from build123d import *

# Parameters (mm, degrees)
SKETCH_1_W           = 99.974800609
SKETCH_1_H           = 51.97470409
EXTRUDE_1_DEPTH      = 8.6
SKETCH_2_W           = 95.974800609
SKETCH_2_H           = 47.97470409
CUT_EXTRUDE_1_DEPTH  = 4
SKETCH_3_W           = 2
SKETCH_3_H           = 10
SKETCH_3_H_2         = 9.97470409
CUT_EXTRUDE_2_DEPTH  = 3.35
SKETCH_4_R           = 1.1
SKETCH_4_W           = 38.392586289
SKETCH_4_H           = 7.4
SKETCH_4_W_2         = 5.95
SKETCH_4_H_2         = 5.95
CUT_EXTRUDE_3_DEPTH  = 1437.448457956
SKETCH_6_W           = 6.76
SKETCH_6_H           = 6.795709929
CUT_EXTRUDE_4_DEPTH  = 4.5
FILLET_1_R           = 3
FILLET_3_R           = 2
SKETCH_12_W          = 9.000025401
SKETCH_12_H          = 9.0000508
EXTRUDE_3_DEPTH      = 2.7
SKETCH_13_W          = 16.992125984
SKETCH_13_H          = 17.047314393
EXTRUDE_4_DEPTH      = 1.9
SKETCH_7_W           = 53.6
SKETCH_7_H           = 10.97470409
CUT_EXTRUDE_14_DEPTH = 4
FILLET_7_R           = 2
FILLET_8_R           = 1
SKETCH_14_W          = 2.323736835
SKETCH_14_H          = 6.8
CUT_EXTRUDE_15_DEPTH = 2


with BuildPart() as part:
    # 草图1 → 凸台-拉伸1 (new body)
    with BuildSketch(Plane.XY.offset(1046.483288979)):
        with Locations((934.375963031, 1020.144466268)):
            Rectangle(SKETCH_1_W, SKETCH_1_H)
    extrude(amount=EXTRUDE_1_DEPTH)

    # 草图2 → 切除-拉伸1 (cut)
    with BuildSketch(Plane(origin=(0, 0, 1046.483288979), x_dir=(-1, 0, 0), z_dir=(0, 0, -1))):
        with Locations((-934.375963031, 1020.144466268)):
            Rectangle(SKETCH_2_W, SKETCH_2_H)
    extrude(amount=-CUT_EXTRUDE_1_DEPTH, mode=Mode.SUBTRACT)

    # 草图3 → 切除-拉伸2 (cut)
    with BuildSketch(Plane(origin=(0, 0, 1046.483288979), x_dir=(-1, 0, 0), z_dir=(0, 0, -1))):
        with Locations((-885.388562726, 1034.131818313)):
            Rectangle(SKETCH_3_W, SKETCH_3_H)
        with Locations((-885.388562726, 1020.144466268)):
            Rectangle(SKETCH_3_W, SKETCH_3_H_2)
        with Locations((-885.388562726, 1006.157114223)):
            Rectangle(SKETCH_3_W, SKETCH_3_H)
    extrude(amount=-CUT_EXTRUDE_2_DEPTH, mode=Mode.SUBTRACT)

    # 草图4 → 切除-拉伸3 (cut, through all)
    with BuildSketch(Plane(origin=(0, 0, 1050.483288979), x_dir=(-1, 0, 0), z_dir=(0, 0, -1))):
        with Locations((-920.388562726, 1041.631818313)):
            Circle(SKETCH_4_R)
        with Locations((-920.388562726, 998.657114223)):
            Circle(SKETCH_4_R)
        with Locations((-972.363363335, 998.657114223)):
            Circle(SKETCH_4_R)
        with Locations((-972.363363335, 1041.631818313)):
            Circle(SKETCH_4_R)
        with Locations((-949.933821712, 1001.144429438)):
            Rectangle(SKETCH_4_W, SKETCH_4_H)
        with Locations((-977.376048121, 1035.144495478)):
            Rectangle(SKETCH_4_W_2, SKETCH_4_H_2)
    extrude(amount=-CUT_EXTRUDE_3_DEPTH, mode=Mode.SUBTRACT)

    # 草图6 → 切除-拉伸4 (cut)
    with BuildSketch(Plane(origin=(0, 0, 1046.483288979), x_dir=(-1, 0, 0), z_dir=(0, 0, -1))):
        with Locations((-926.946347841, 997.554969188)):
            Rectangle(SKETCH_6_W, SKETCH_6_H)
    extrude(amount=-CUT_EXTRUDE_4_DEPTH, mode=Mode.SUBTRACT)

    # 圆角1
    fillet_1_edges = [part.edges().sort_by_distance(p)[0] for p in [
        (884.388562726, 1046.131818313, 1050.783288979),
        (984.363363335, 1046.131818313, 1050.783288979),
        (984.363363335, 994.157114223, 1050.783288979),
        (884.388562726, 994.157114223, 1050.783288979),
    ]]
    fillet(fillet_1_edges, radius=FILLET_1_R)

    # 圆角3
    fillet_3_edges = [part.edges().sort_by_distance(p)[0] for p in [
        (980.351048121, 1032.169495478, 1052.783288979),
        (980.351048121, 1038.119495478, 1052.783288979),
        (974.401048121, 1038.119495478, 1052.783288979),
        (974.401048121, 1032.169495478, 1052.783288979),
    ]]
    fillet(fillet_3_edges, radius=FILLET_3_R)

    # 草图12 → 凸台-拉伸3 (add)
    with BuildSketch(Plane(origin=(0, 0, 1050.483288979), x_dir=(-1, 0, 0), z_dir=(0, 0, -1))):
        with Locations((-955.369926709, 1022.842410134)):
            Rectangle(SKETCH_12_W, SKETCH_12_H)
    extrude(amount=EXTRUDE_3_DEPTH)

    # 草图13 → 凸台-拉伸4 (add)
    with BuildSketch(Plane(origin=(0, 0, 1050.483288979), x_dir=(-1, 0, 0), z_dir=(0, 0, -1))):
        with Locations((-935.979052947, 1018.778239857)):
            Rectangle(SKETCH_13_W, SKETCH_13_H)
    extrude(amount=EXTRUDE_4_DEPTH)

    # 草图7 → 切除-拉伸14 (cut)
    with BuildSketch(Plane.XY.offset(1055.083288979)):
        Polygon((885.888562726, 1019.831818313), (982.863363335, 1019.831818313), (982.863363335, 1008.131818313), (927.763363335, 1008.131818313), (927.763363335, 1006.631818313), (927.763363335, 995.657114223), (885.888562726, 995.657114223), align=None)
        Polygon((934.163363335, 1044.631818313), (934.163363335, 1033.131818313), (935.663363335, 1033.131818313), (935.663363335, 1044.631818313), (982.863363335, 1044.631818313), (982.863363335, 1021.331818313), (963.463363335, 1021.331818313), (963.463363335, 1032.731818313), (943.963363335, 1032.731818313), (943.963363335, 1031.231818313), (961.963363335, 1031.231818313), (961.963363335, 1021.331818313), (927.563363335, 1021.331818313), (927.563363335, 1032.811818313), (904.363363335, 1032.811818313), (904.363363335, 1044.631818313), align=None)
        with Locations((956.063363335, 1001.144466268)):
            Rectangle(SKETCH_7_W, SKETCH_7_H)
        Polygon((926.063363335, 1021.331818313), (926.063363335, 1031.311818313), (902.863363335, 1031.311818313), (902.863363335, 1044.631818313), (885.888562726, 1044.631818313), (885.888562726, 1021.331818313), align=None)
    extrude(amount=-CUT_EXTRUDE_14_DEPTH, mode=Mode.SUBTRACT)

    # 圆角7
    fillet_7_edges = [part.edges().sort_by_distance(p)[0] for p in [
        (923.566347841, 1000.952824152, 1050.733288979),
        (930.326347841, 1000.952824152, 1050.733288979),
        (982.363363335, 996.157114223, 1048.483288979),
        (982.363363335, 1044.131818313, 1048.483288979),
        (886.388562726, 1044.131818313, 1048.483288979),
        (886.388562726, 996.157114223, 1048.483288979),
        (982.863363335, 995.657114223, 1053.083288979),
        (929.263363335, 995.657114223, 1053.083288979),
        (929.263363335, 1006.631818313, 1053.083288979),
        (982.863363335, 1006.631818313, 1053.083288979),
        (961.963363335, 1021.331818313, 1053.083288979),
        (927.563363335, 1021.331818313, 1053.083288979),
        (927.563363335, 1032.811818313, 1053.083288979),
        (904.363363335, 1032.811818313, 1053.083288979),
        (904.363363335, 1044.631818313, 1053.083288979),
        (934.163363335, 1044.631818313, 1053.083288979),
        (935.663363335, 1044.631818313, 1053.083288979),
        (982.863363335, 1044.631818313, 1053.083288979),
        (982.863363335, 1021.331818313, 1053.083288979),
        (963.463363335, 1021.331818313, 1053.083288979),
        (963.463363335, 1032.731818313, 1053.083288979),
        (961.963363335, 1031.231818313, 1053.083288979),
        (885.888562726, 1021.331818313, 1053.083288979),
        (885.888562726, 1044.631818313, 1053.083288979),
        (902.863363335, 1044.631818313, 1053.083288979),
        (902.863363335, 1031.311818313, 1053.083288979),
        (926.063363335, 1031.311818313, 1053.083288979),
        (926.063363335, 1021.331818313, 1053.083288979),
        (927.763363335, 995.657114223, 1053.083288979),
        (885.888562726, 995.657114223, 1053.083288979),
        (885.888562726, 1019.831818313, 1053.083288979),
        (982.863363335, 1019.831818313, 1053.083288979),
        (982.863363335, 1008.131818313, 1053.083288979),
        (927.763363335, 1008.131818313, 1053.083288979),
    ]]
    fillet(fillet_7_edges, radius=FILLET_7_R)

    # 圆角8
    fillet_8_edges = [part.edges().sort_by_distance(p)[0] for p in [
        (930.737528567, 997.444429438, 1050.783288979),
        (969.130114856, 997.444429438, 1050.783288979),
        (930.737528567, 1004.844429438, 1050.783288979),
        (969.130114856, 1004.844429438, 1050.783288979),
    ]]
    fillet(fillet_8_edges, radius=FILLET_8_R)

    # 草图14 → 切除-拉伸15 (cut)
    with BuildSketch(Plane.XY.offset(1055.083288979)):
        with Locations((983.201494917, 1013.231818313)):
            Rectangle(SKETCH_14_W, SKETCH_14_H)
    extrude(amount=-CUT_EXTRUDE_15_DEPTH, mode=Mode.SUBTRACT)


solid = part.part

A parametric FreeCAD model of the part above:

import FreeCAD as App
import Part
import Sketcher

V = App.Vector


def edges_at(feature, points):
    """Names of the edges that pass closest to the given points."""
    edges = feature.Shape.Edges
    near = lambda p: min(range(len(edges)), key=lambda i: edges[i].distToShape(Part.Vertex(*p))[0])
    return sorted({f"Edge{near(p) + 1}" for p in points})

doc = App.newDocument("Part")
body = doc.addObject("PartDesign::Body", "Body")

sketch1 = body.newObject("Sketcher::SketchObject", "Sketch")
sketch1.AttachmentSupport = (doc.getObject("XY_Plane"), [""])
sketch1.MapMode = "FlatFace"
sketch1.AttachmentOffset = App.Placement(V(0, 0, 1046.483289), App.Rotation())
sketch1.addGeometry(Part.LineSegment(V(884, 1046, 0), V(884, 994, 0)), False)
sketch1.addGeometry(Part.LineSegment(V(884, 994, 0), V(984, 994, 0)), False)
sketch1.addGeometry(Part.LineSegment(V(984, 994, 0), V(984, 1046, 0)), False)
sketch1.addGeometry(Part.LineSegment(V(984, 1046, 0), V(884, 1046, 0)), False)
sketch1.addConstraint(Sketcher.Constraint("Coincident", 0, 2, 1, 1))
sketch1.addConstraint(Sketcher.Constraint("Coincident", 1, 2, 2, 1))
sketch1.addConstraint(Sketcher.Constraint("Coincident", 2, 2, 3, 1))
sketch1.addConstraint(Sketcher.Constraint("Coincident", 3, 2, 0, 1))
sketch1.addConstraint(Sketcher.Constraint("Vertical", 0))
sketch1.addConstraint(Sketcher.Constraint("Horizontal", 1))
sketch1.addConstraint(Sketcher.Constraint("Vertical", 2))
sketch1.addConstraint(Sketcher.Constraint("Horizontal", 3))
sketch1.addConstraint(Sketcher.Constraint("DistanceX", 1, 1, 1, 2, 99.974801))
sketch1.addConstraint(Sketcher.Constraint("DistanceY", 0, 2, 0, 1, 51.974704))
sketch1.addConstraint(Sketcher.Constraint("DistanceY", -1, 1, 2, 2, 1046.131818))
sketch1.addConstraint(Sketcher.Constraint("DistanceX", -1, 1, 0, 2, 884.388563))
pad1 = body.newObject("PartDesign::Pad", "Pad")
pad1.Profile = sketch1
pad1.Length = 8.6

sketch2 = body.newObject("Sketcher::SketchObject", "Sketch001")
sketch2.AttachmentSupport = (doc.getObject("XY_Plane"), [""])
sketch2.MapMode = "FlatFace"
sketch2.AttachmentOffset = App.Placement(V(0, 0, 1046.483289), App.Rotation())
sketch2.addGeometry(Part.LineSegment(V(982, 1044, 0), V(982, 996, 0)), False)
sketch2.addGeometry(Part.LineSegment(V(982, 996, 0), V(886, 996, 0)), False)
sketch2.addGeometry(Part.LineSegment(V(886, 996, 0), V(886, 1044, 0)), False)
sketch2.addGeometry(Part.LineSegment(V(886, 1044, 0), V(982, 1044, 0)), False)
sketch2.addConstraint(Sketcher.Constraint("Coincident", 0, 2, 1, 1))
sketch2.addConstraint(Sketcher.Constraint("Coincident", 1, 2, 2, 1))
sketch2.addConstraint(Sketcher.Constraint("Coincident", 2, 2, 3, 1))
sketch2.addConstraint(Sketcher.Constraint("Coincident", 3, 2, 0, 1))
sketch2.addConstraint(Sketcher.Constraint("Vertical", 0))
sketch2.addConstraint(Sketcher.Constraint("Horizontal", 1))
sketch2.addConstraint(Sketcher.Constraint("Vertical", 2))
sketch2.addConstraint(Sketcher.Constraint("Horizontal", 3))
sketch2.addConstraint(Sketcher.Constraint("DistanceX", 1, 2, 1, 1, 95.974801))
sketch2.addConstraint(Sketcher.Constraint("DistanceY", 0, 2, 0, 1, 47.974704))
sketch2.addConstraint(Sketcher.Constraint("DistanceY", -1, 1, 2, 2, 1044.131818))
sketch2.addConstraint(Sketcher.Constraint("DistanceX", -1, 1, 0, 2, 982.363363))
pocket1 = body.newObject("PartDesign::Pocket", "Pocket")
pocket1.Profile = sketch2
pocket1.Length = 4
pocket1.Reversed = True

sketch3 = body.newObject("Sketcher::SketchObject", "Sketch002")
sketch3.AttachmentSupport = (doc.getObject("XY_Plane"), [""])
sketch3.MapMode = "FlatFace"
sketch3.AttachmentOffset = App.Placement(V(0, 0, 1046.483289), App.Rotation())
sketch3.addGeometry(Part.LineSegment(V(886.4, 1039.1, 0), V(886.4, 1029.1, 0)), False)
sketch3.addGeometry(Part.LineSegment(V(886.4, 1029.1, 0), V(884.4, 1029.1, 0)), False)
sketch3.addGeometry(Part.LineSegment(V(884.4, 1029.1, 0), V(884.4, 1039.1, 0)), False)
sketch3.addGeometry(Part.LineSegment(V(884.4, 1039.1, 0), V(886.4, 1039.1, 0)), False)
sketch3.addGeometry(Part.LineSegment(V(886.4, 1025.1, 0), V(886.4, 1015.2, 0)), False)
sketch3.addGeometry(Part.LineSegment(V(886.4, 1015.2, 0), V(884.4, 1015.2, 0)), False)
sketch3.addGeometry(Part.LineSegment(V(884.4, 1015.2, 0), V(884.4, 1025.1, 0)), False)
sketch3.addGeometry(Part.LineSegment(V(884.4, 1025.1, 0), V(886.4, 1025.1, 0)), False)
sketch3.addGeometry(Part.LineSegment(V(886.4, 1011.2, 0), V(886.4, 1001.2, 0)), False)
sketch3.addGeometry(Part.LineSegment(V(886.4, 1001.2, 0), V(884.4, 1001.2, 0)), False)
sketch3.addGeometry(Part.LineSegment(V(884.4, 1001.2, 0), V(884.4, 1011.2, 0)), False)
sketch3.addGeometry(Part.LineSegment(V(884.4, 1011.2, 0), V(886.4, 1011.2, 0)), False)
sketch3.addConstraint(Sketcher.Constraint("Coincident", 0, 2, 1, 1))
sketch3.addConstraint(Sketcher.Constraint("Coincident", 1, 2, 2, 1))
sketch3.addConstraint(Sketcher.Constraint("Coincident", 2, 2, 3, 1))
sketch3.addConstraint(Sketcher.Constraint("Coincident", 3, 2, 0, 1))
sketch3.addConstraint(Sketcher.Constraint("Coincident", 4, 2, 5, 1))
sketch3.addConstraint(Sketcher.Constraint("Coincident", 5, 2, 6, 1))
sketch3.addConstraint(Sketcher.Constraint("Coincident", 6, 2, 7, 1))
sketch3.addConstraint(Sketcher.Constraint("Coincident", 7, 2, 4, 1))
sketch3.addConstraint(Sketcher.Constraint("Coincident", 8, 2, 9, 1))
sketch3.addConstraint(Sketcher.Constraint("Coincident", 9, 2, 10, 1))
sketch3.addConstraint(Sketcher.Constraint("Coincident", 10, 2, 11, 1))
sketch3.addConstraint(Sketcher.Constraint("Coincident", 11, 2, 8, 1))
sketch3.addConstraint(Sketcher.Constraint("Vertical", 0))
sketch3.addConstraint(Sketcher.Constraint("Horizontal", 1))
sketch3.addConstraint(Sketcher.Constraint("Vertical", 2))
sketch3.addConstraint(Sketcher.Constraint("Horizontal", 3))
sketch3.addConstraint(Sketcher.Constraint("Vertical", 4))
sketch3.addConstraint(Sketcher.Constraint("Horizontal", 5))
sketch3.addConstraint(Sketcher.Constraint("Vertical", 6))
sketch3.addConstraint(Sketcher.Constraint("Horizontal", 7))
sketch3.addConstraint(Sketcher.Constraint("Vertical", 8))
sketch3.addConstraint(Sketcher.Constraint("Horizontal", 9))
sketch3.addConstraint(Sketcher.Constraint("Vertical", 10))
sketch3.addConstraint(Sketcher.Constraint("Horizontal", 11))
sketch3.addConstraint(Sketcher.Constraint("Vertical", 3, 2, 4, 2))
sketch3.addConstraint(Sketcher.Constraint("Vertical", 2, 2, 5, 2))
sketch3.addConstraint(Sketcher.Constraint("Vertical", 7, 2, 8, 2))
sketch3.addConstraint(Sketcher.Constraint("Vertical", 6, 2, 9, 2))
sketch3.addConstraint(Sketcher.Constraint("Equal", 2, 8))
sketch3.addConstraint(Sketcher.Constraint("DistanceX", 1, 2, 1, 1, 2.0))
sketch3.addConstraint(Sketcher.Constraint("DistanceY", 0, 2, 0, 1, 10.0))
sketch3.addConstraint(Sketcher.Constraint("DistanceY", 6, 2, 1, 2, 4.0))
sketch3.addConstraint(Sketcher.Constraint("DistanceY", 8, 2, 4, 2, 14.0))
sketch3.addConstraint(Sketcher.Constraint("DistanceY", 4, 2, 4, 1, 9.974704))
sketch3.addConstraint(Sketcher.Constraint("DistanceY", -1, 1, 0, 2, 1029.131818))
sketch3.addConstraint(Sketcher.Constraint("DistanceX", -1, 1, 0, 2, 886.388563))
pocket2 = body.newObject("PartDesign::Pocket", "Pocket001")
pocket2.Profile = sketch3
pocket2.Length = 3.35
pocket2.Reversed = True

sketch4 = body.newObject("Sketcher::SketchObject", "Sketch003")
sketch4.AttachmentSupport = (doc.getObject("XY_Plane"), [""])
sketch4.MapMode = "FlatFace"
sketch4.AttachmentOffset = App.Placement(V(0, 0, 1050.483289), App.Rotation())
sketch4.addGeometry(Part.Circle(V(920.4, 1041.6, 0), V(0, 0, 1), 1.1), False)
sketch4.addGeometry(Part.Circle(V(920.4, 998.7, 0), V(0, 0, 1), 1.1), False)
sketch4.addGeometry(Part.Circle(V(972.4, 998.7, 0), V(0, 0, 1), 1.1), False)
sketch4.addGeometry(Part.Circle(V(972.4, 1041.6, 0), V(0, 0, 1), 1.1), False)
sketch4.addGeometry(Part.LineSegment(V(969.1, 1004.8, 0), V(969.1, 997.4, 0)), False)
sketch4.addGeometry(Part.LineSegment(V(969.1, 997.4, 0), V(930.7, 997.4, 0)), False)
sketch4.addGeometry(Part.LineSegment(V(930.7, 997.4, 0), V(930.7, 1004.8, 0)), False)
sketch4.addGeometry(Part.LineSegment(V(930.7, 1004.8, 0), V(969.1, 1004.8, 0)), False)
sketch4.addGeometry(Part.LineSegment(V(980.4, 1038.1, 0), V(980.4, 1032.2, 0)), False)
sketch4.addGeometry(Part.LineSegment(V(980.4, 1032.2, 0), V(974.4, 1032.2, 0)), False)
sketch4.addGeometry(Part.LineSegment(V(974.4, 1032.2, 0), V(974.4, 1038.1, 0)), False)
sketch4.addGeometry(Part.LineSegment(V(974.4, 1038.1, 0), V(980.4, 1038.1, 0)), False)
sketch4.addConstraint(Sketcher.Constraint("Coincident", 4, 2, 5, 1))
sketch4.addConstraint(Sketcher.Constraint("Coincident", 5, 2, 6, 1))
sketch4.addConstraint(Sketcher.Constraint("Coincident", 6, 2, 7, 1))
sketch4.addConstraint(Sketcher.Constraint("Coincident", 7, 2, 4, 1))
sketch4.addConstraint(Sketcher.Constraint("Coincident", 8, 2, 9, 1))
sketch4.addConstraint(Sketcher.Constraint("Coincident", 9, 2, 10, 1))
sketch4.addConstraint(Sketcher.Constraint("Coincident", 10, 2, 11, 1))
sketch4.addConstraint(Sketcher.Constraint("Coincident", 11, 2, 8, 1))
sketch4.addConstraint(Sketcher.Constraint("Vertical", 4))
sketch4.addConstraint(Sketcher.Constraint("Horizontal", 5))
sketch4.addConstraint(Sketcher.Constraint("Vertical", 6))
sketch4.addConstraint(Sketcher.Constraint("Horizontal", 7))
sketch4.addConstraint(Sketcher.Constraint("Vertical", 8))
sketch4.addConstraint(Sketcher.Constraint("Horizontal", 9))
sketch4.addConstraint(Sketcher.Constraint("Vertical", 10))
sketch4.addConstraint(Sketcher.Constraint("Horizontal", 11))
sketch4.addConstraint(Sketcher.Constraint("Equal", 0, 1))
sketch4.addConstraint(Sketcher.Constraint("Equal", 1, 2))
sketch4.addConstraint(Sketcher.Constraint("Equal", 2, 3))
sketch4.addConstraint(Sketcher.Constraint("Horizontal", 1, 3, 2, 3))
sketch4.addConstraint(Sketcher.Constraint("Horizontal", 0, 3, 3, 3))
sketch4.addConstraint(Sketcher.Constraint("Vertical", 0, 3, 1, 3))
sketch4.addConstraint(Sketcher.Constraint("Vertical", 2, 3, 3, 3))
sketch4.addConstraint(Sketcher.Constraint("Equal", 11, 8))
sketch4.addConstraint(Sketcher.Constraint("Diameter", 0, 2.2))
sketch4.addConstraint(Sketcher.Constraint("DistanceY", 4, 2, 4, 1, 7.4))
sketch4.addConstraint(Sketcher.Constraint("DistanceX", 9, 2, 9, 1, 5.95))
sketch4.addConstraint(Sketcher.Constraint("DistanceX", 1, 3, 2, 3, 51.974801))
sketch4.addConstraint(Sketcher.Constraint("DistanceX", 5, 2, 5, 1, 38.392586))
sketch4.addConstraint(Sketcher.Constraint("DistanceY", -1, 1, 0, 3, 1041.631818))
sketch4.addConstraint(Sketcher.Constraint("DistanceY", -1, 1, 4, 2, 997.444429))
sketch4.addConstraint(Sketcher.Constraint("DistanceX", -1, 1, 5, 2, 930.737529))
sketch4.addConstraint(Sketcher.Constraint("DistanceX", -1, 1, 8, 2, 980.351048))
sketch4.addConstraint(Sketcher.Constraint("DistanceX", 4, 2, 2, 3, 3.233248))
sketch4.addConstraint(Sketcher.Constraint("DistanceY", 2, 3, 8, 2, 33.512381))
sketch4.addConstraint(Sketcher.Constraint("DistanceY", -1, 1, 1, 3, 998.657114))
pocket3 = body.newObject("PartDesign::Pocket", "Pocket002")
pocket3.Profile = sketch4
pocket3.Type = "ThroughAll"
pocket3.Reversed = True

sketch5 = body.newObject("Sketcher::SketchObject", "Sketch004")
sketch5.AttachmentSupport = (doc.getObject("XY_Plane"), [""])
sketch5.MapMode = "FlatFace"
sketch5.AttachmentOffset = App.Placement(V(0, 0, 1046.483289), App.Rotation())
sketch5.addGeometry(Part.LineSegment(V(930, 1001, 0), V(930, 994, 0)), False)
sketch5.addGeometry(Part.LineSegment(V(930, 994, 0), V(924, 994, 0)), False)
sketch5.addGeometry(Part.LineSegment(V(924, 994, 0), V(924, 1001, 0)), False)
sketch5.addGeometry(Part.LineSegment(V(924, 1001, 0), V(930, 1001, 0)), False)
sketch5.addConstraint(Sketcher.Constraint("Coincident", 0, 2, 1, 1))
sketch5.addConstraint(Sketcher.Constraint("Coincident", 1, 2, 2, 1))
sketch5.addConstraint(Sketcher.Constraint("Coincident", 2, 2, 3, 1))
sketch5.addConstraint(Sketcher.Constraint("Coincident", 3, 2, 0, 1))
sketch5.addConstraint(Sketcher.Constraint("Vertical", 0))
sketch5.addConstraint(Sketcher.Constraint("Horizontal", 1))
sketch5.addConstraint(Sketcher.Constraint("Vertical", 2))
sketch5.addConstraint(Sketcher.Constraint("Horizontal", 3))
sketch5.addConstraint(Sketcher.Constraint("DistanceX", 1, 2, 1, 1, 6.76))
sketch5.addConstraint(Sketcher.Constraint("DistanceY", 0, 2, 0, 1, 6.79571))
sketch5.addConstraint(Sketcher.Constraint("DistanceX", -1, 1, 0, 2, 930.326348))
sketch5.addConstraint(Sketcher.Constraint("DistanceY", -1, 1, 0, 2, 994.157114))
pocket4 = body.newObject("PartDesign::Pocket", "Pocket003")
pocket4.Profile = sketch5
pocket4.Length = 4.5
pocket4.Reversed = True
doc.recompute()

fillet = body.newObject("PartDesign::Fillet", "Fillet")
fillet.Base = (pocket4, edges_at(pocket4, [
    (884.389, 1046.132, 1050.783),
    (984.363, 1046.132, 1050.783),
    (984.363, 994.157, 1050.783),
    (884.389, 994.157, 1050.783),
]))
fillet.Radius = 3
doc.recompute()

fillet2 = body.newObject("PartDesign::Fillet", "Fillet001")
fillet2.Base = (fillet, edges_at(fillet, [
    (980.351, 1032.169, 1052.783),
    (980.351, 1038.119, 1052.783),
    (974.401, 1038.119, 1052.783),
    (974.401, 1032.169, 1052.783),
]))
fillet2.Radius = 2

sketch6 = body.newObject("Sketcher::SketchObject", "Sketch005")
sketch6.AttachmentSupport = (doc.getObject("XY_Plane"), [""])
sketch6.MapMode = "FlatFace"
sketch6.AttachmentOffset = App.Placement(V(0, 0, 1050.483289), App.Rotation())
sketch6.addGeometry(Part.LineSegment(V(960, 1027, 0), V(960, 1018, 0)), False)
sketch6.addGeometry(Part.LineSegment(V(960, 1018, 0), V(951, 1018, 0)), False)
sketch6.addGeometry(Part.LineSegment(V(951, 1018, 0), V(951, 1027, 0)), False)
sketch6.addGeometry(Part.LineSegment(V(951, 1027, 0), V(960, 1027, 0)), False)
sketch6.addConstraint(Sketcher.Constraint("Coincident", 0, 2, 1, 1))
sketch6.addConstraint(Sketcher.Constraint("Coincident", 1, 2, 2, 1))
sketch6.addConstraint(Sketcher.Constraint("Coincident", 2, 2, 3, 1))
sketch6.addConstraint(Sketcher.Constraint("Coincident", 3, 2, 0, 1))
sketch6.addConstraint(Sketcher.Constraint("Vertical", 0))
sketch6.addConstraint(Sketcher.Constraint("Horizontal", 1))
sketch6.addConstraint(Sketcher.Constraint("Vertical", 2))
sketch6.addConstraint(Sketcher.Constraint("Horizontal", 3))
sketch6.addConstraint(Sketcher.Constraint("DistanceY", 0, 2, 0, 1, 9.000051))
sketch6.addConstraint(Sketcher.Constraint("DistanceX", 1, 2, 1, 1, 9.000025))
sketch6.addConstraint(Sketcher.Constraint("DistanceX", -1, 1, 0, 2, 959.869939))
sketch6.addConstraint(Sketcher.Constraint("DistanceY", -1, 1, 0, 2, 1018.342385))
pad2 = body.newObject("PartDesign::Pad", "Pad001")
pad2.Profile = sketch6
pad2.Length = 2.7
pad2.Reversed = True

sketch7 = body.newObject("Sketcher::SketchObject", "Sketch006")
sketch7.AttachmentSupport = (doc.getObject("XY_Plane"), [""])
sketch7.MapMode = "FlatFace"
sketch7.AttachmentOffset = App.Placement(V(0, 0, 1050.483289), App.Rotation())
sketch7.addGeometry(Part.LineSegment(V(944, 1027, 0), V(944, 1010, 0)), False)
sketch7.addGeometry(Part.LineSegment(V(944, 1010, 0), V(927, 1010, 0)), False)
sketch7.addGeometry(Part.LineSegment(V(927, 1010, 0), V(927, 1027, 0)), False)
sketch7.addGeometry(Part.LineSegment(V(927, 1027, 0), V(944, 1027, 0)), False)
sketch7.addConstraint(Sketcher.Constraint("Coincident", 0, 2, 1, 1))
sketch7.addConstraint(Sketcher.Constraint("Coincident", 1, 2, 2, 1))
sketch7.addConstraint(Sketcher.Constraint("Coincident", 2, 2, 3, 1))
sketch7.addConstraint(Sketcher.Constraint("Coincident", 3, 2, 0, 1))
sketch7.addConstraint(Sketcher.Constraint("Vertical", 0))
sketch7.addConstraint(Sketcher.Constraint("Horizontal", 1))
sketch7.addConstraint(Sketcher.Constraint("Vertical", 2))
sketch7.addConstraint(Sketcher.Constraint("Horizontal", 3))
sketch7.addConstraint(Sketcher.Constraint("DistanceX", 1, 2, 1, 1, 16.992126))
sketch7.addConstraint(Sketcher.Constraint("DistanceY", 0, 2, 0, 1, 17.047314))
sketch7.addConstraint(Sketcher.Constraint("DistanceX", -1, 1, 1, 2, 927.48299))
sketch7.addConstraint(Sketcher.Constraint("DistanceY", -1, 1, 0, 2, 1010.254583))
pad3 = body.newObject("PartDesign::Pad", "Pad002")
pad3.Profile = sketch7
pad3.Length = 1.9
pad3.Reversed = True

sketch8 = body.newObject("Sketcher::SketchObject", "Sketch007")
sketch8.AttachmentSupport = (doc.getObject("XY_Plane"), [""])
sketch8.MapMode = "FlatFace"
sketch8.AttachmentOffset = App.Placement(V(0, 0, 1055.083289), App.Rotation())
sketch8.addGeometry(Part.LineSegment(V(982.9, 1019.8, 0), V(885.9, 1019.8, 0)), False)
sketch8.addGeometry(Part.LineSegment(V(885.9, 1019.8, 0), V(885.9, 995.7, 0)), False)
sketch8.addGeometry(Part.LineSegment(V(885.9, 995.7, 0), V(927.8, 995.7, 0)), False)
sketch8.addGeometry(Part.LineSegment(V(927.8, 995.7, 0), V(927.8, 1008.1, 0)), False)
sketch8.addGeometry(Part.LineSegment(V(927.8, 1008.1, 0), V(982.9, 1008.1, 0)), False)
sketch8.addGeometry(Part.LineSegment(V(982.9, 1008.1, 0), V(982.9, 1019.8, 0)), False)
sketch8.addGeometry(Part.LineSegment(V(934.2, 1033.1, 0), V(934.2, 1044.6, 0)), False)
sketch8.addGeometry(Part.LineSegment(V(934.2, 1044.6, 0), V(904.4, 1044.6, 0)), False)
sketch8.addGeometry(Part.LineSegment(V(904.4, 1044.6, 0), V(904.4, 1032.8, 0)), False)
sketch8.addGeometry(Part.LineSegment(V(904.4, 1032.8, 0), V(927.6, 1032.8, 0)), False)
sketch8.addGeometry(Part.LineSegment(V(927.6, 1032.8, 0), V(927.6, 1021.3, 0)), False)
sketch8.addGeometry(Part.LineSegment(V(927.6, 1021.3, 0), V(962, 1021.3, 0)), False)
sketch8.addGeometry(Part.LineSegment(V(962, 1021.3, 0), V(962, 1031.2, 0)), False)
sketch8.addGeometry(Part.LineSegment(V(962, 1031.2, 0), V(944, 1031.2, 0)), False)
sketch8.addGeometry(Part.LineSegment(V(944, 1031.2, 0), V(944, 1032.7, 0)), False)
sketch8.addGeometry(Part.LineSegment(V(944, 1032.7, 0), V(963.5, 1032.7, 0)), False)
sketch8.addGeometry(Part.LineSegment(V(963.5, 1032.7, 0), V(963.5, 1021.3, 0)), False)
sketch8.addGeometry(Part.LineSegment(V(963.5, 1021.3, 0), V(982.9, 1021.3, 0)), False)
sketch8.addGeometry(Part.LineSegment(V(982.9, 1021.3, 0), V(982.9, 1044.6, 0)), False)
sketch8.addGeometry(Part.LineSegment(V(982.9, 1044.6, 0), V(935.7, 1044.6, 0)), False)
sketch8.addGeometry(Part.LineSegment(V(935.7, 1044.6, 0), V(935.7, 1033.1, 0)), False)
sketch8.addGeometry(Part.LineSegment(V(935.7, 1033.1, 0), V(934.2, 1033.1, 0)), False)
sketch8.addGeometry(Part.LineSegment(V(929.3, 1006.6, 0), V(929.3, 995.7, 0)), False)
sketch8.addGeometry(Part.LineSegment(V(929.3, 995.7, 0), V(982.9, 995.7, 0)), False)
sketch8.addGeometry(Part.LineSegment(V(982.9, 995.7, 0), V(982.9, 1006.6, 0)), False)
sketch8.addGeometry(Part.LineSegment(V(982.9, 1006.6, 0), V(929.3, 1006.6, 0)), False)
sketch8.addGeometry(Part.LineSegment(V(926.1, 1021.3, 0), V(926.1, 1031.3, 0)), False)
sketch8.addGeometry(Part.LineSegment(V(926.1, 1031.3, 0), V(902.9, 1031.3, 0)), False)
sketch8.addGeometry(Part.LineSegment(V(902.9, 1031.3, 0), V(902.9, 1044.6, 0)), False)
sketch8.addGeometry(Part.LineSegment(V(902.9, 1044.6, 0), V(885.9, 1044.6, 0)), False)
sketch8.addGeometry(Part.LineSegment(V(885.9, 1044.6, 0), V(885.9, 1021.3, 0)), False)
sketch8.addGeometry(Part.LineSegment(V(885.9, 1021.3, 0), V(926.1, 1021.3, 0)), False)
sketch8.addConstraint(Sketcher.Constraint("Coincident", 0, 2, 1, 1))
sketch8.addConstraint(Sketcher.Constraint("Coincident", 1, 2, 2, 1))
sketch8.addConstraint(Sketcher.Constraint("Coincident", 2, 2, 3, 1))
sketch8.addConstraint(Sketcher.Constraint("Coincident", 3, 2, 4, 1))
sketch8.addConstraint(Sketcher.Constraint("Coincident", 4, 2, 5, 1))
sketch8.addConstraint(Sketcher.Constraint("Coincident", 5, 2, 0, 1))
sketch8.addConstraint(Sketcher.Constraint("Coincident", 6, 2, 7, 1))
sketch8.addConstraint(Sketcher.Constraint("Coincident", 7, 2, 8, 1))
sketch8.addConstraint(Sketcher.Constraint("Coincident", 8, 2, 9, 1))
sketch8.addConstraint(Sketcher.Constraint("Coincident", 9, 2, 10, 1))
sketch8.addConstraint(Sketcher.Constraint("Coincident", 10, 2, 11, 1))
sketch8.addConstraint(Sketcher.Constraint("Coincident", 11, 2, 12, 1))
sketch8.addConstraint(Sketcher.Constraint("Coincident", 12, 2, 13, 1))
sketch8.addConstraint(Sketcher.Constraint("Coincident", 13, 2, 14, 1))
sketch8.addConstraint(Sketcher.Constraint("Coincident", 14, 2, 15, 1))
sketch8.addConstraint(Sketcher.Constraint("Coincident", 15, 2, 16, 1))
sketch8.addConstraint(Sketcher.Constraint("Coincident", 16, 2, 17, 1))
sketch8.addConstraint(Sketcher.Constraint("Coincident", 17, 2, 18, 1))
sketch8.addConstraint(Sketcher.Constraint("Coincident", 18, 2, 19, 1))
sketch8.addConstraint(Sketcher.Constraint("Coincident", 19, 2, 20, 1))
sketch8.addConstraint(Sketcher.Constraint("Coincident", 20, 2, 21, 1))
sketch8.addConstraint(Sketcher.Constraint("Coincident", 21, 2, 6, 1))
sketch8.addConstraint(Sketcher.Constraint("Coincident", 22, 2, 23, 1))
sketch8.addConstraint(Sketcher.Constraint("Coincident", 23, 2, 24, 1))
sketch8.addConstraint(Sketcher.Constraint("Coincident", 24, 2, 25, 1))
sketch8.addConstraint(Sketcher.Constraint("Coincident", 25, 2, 22, 1))
sketch8.addConstraint(Sketcher.Constraint("Coincident", 26, 2, 27, 1))
sketch8.addConstraint(Sketcher.Constraint("Coincident", 27, 2, 28, 1))
sketch8.addConstraint(Sketcher.Constraint("Coincident", 28, 2, 29, 1))
sketch8.addConstraint(Sketcher.Constraint("Coincident", 29, 2, 30, 1))
sketch8.addConstraint(Sketcher.Constraint("Coincident", 30, 2, 31, 1))
sketch8.addConstraint(Sketcher.Constraint("Coincident", 31, 2, 26, 1))
sketch8.addConstraint(Sketcher.Constraint("Horizontal", 0))
sketch8.addConstraint(Sketcher.Constraint("Vertical", 1))
sketch8.addConstraint(Sketcher.Constraint("Horizontal", 2))
sketch8.addConstraint(Sketcher.Constraint("Vertical", 3))
sketch8.addConstraint(Sketcher.Constraint("Horizontal", 4))
sketch8.addConstraint(Sketcher.Constraint("Vertical", 5))
sketch8.addConstraint(Sketcher.Constraint("Vertical", 6))
sketch8.addConstraint(Sketcher.Constraint("Horizontal", 7))
sketch8.addConstraint(Sketcher.Constraint("Vertical", 8))
sketch8.addConstraint(Sketcher.Constraint("Horizontal", 9))
sketch8.addConstraint(Sketcher.Constraint("Vertical", 10))
sketch8.addConstraint(Sketcher.Constraint("Horizontal", 11))
sketch8.addConstraint(Sketcher.Constraint("Vertical", 12))
sketch8.addConstraint(Sketcher.Constraint("Horizontal", 13))
sketch8.addConstraint(Sketcher.Constraint("Vertical", 14))
sketch8.addConstraint(Sketcher.Constraint("Horizontal", 15))
sketch8.addConstraint(Sketcher.Constraint("Vertical", 16))
sketch8.addConstraint(Sketcher.Constraint("Horizontal", 17))
sketch8.addConstraint(Sketcher.Constraint("Vertical", 18))
sketch8.addConstraint(Sketcher.Constraint("Horizontal", 19))
sketch8.addConstraint(Sketcher.Constraint("Vertical", 20))
sketch8.addConstraint(Sketcher.Constraint("Horizontal", 21))
sketch8.addConstraint(Sketcher.Constraint("Vertical", 22))
sketch8.addConstraint(Sketcher.Constraint("Horizontal", 23))
sketch8.addConstraint(Sketcher.Constraint("Vertical", 24))
sketch8.addConstraint(Sketcher.Constraint("Horizontal", 25))
sketch8.addConstraint(Sketcher.Constraint("Vertical", 26))
sketch8.addConstraint(Sketcher.Constraint("Horizontal", 27))
sketch8.addConstraint(Sketcher.Constraint("Vertical", 28))
sketch8.addConstraint(Sketcher.Constraint("Horizontal", 29))
sketch8.addConstraint(Sketcher.Constraint("Vertical", 30))
sketch8.addConstraint(Sketcher.Constraint("Horizontal", 31))
sketch8.addConstraint(Sketcher.Constraint("Horizontal", 11, 2, 16, 2))
sketch8.addConstraint(Sketcher.Constraint("Horizontal", 7, 2, 18, 2))
sketch8.addConstraint(Sketcher.Constraint("Horizontal", 2, 2, 22, 2))
sketch8.addConstraint(Sketcher.Constraint("Horizontal", 19, 2, 28, 2))
sketch8.addConstraint(Sketcher.Constraint("Horizontal", 17, 2, 30, 2))
sketch8.addConstraint(Sketcher.Constraint("Vertical", 5, 2, 17, 2))
sketch8.addConstraint(Sketcher.Constraint("Vertical", 18, 2, 23, 2))
sketch8.addConstraint(Sketcher.Constraint("Vertical", 1, 2, 29, 2))
sketch8.addConstraint(Sketcher.Constraint("Equal", 9, 27))
sketch8.addConstraint(Sketcher.Constraint("Equal", 21, 14))
sketch8.addConstraint(Sketcher.Constraint("DistanceX", 13, 2, 13, 1, 18.0))
sketch8.addConstraint(Sketcher.Constraint("DistanceX", 4, 1, 4, 2, 55.1))
sketch8.addConstraint(Sketcher.Constraint("DistanceX", 7, 2, 7, 1, 29.8))
sketch8.addConstraint(Sketcher.Constraint("DistanceX", 9, 1, 9, 2, 23.2))
sketch8.addConstraint(Sketcher.Constraint("DistanceX", 11, 1, 11, 2, 34.4))
sketch8.addConstraint(Sketcher.Constraint("DistanceX", 15, 1, 15, 2, 19.5))
sketch8.addConstraint(Sketcher.Constraint("DistanceX", 17, 1, 17, 2, 19.4))
sketch8.addConstraint(Sketcher.Constraint("DistanceX", 19, 2, 19, 1, 47.2))
sketch8.addConstraint(Sketcher.Constraint("DistanceX", 23, 1, 23, 2, 53.6))
sketch8.addConstraint(Sketcher.Constraint("DistanceY", 5, 1, 5, 2, 11.7))
sketch8.addConstraint(Sketcher.Constraint("DistanceY", 6, 1, 6, 2, 11.5))
sketch8.addConstraint(Sketcher.Constraint("DistanceY", 12, 1, 12, 2, 9.9))
sketch8.addConstraint(Sketcher.Constraint("DistanceY", 18, 1, 18, 2, 23.3))
sketch8.addConstraint(Sketcher.Constraint("DistanceY", 8, 2, 8, 1, 11.82))
sketch8.addConstraint(Sketcher.Constraint("DistanceY", 26, 1, 26, 2, 9.98))
sketch8.addConstraint(Sketcher.Constraint("DistanceY", 3, 2, 6, 2, 36.5))
sketch8.addConstraint(Sketcher.Constraint("DistanceY", 24, 2, 4, 2, 1.5))
sketch8.addConstraint(Sketcher.Constraint("DistanceX", 26, 2, 9, 2, 1.5))
sketch8.addConstraint(Sketcher.Constraint("DistanceX", 0, 2, 0, 1, 96.974801))
sketch8.addConstraint(Sketcher.Constraint("DistanceY", 1, 2, 1, 1, 24.174704))
sketch8.addConstraint(Sketcher.Constraint("DistanceY", -1, 1, 0, 2, 1019.831818))
sketch8.addConstraint(Sketcher.Constraint("DistanceX", -1, 1, 0, 2, 885.888563))
pocket5 = body.newObject("PartDesign::Pocket", "Pocket004")
pocket5.Profile = sketch8
pocket5.Length = 4
doc.recompute()

fillet3 = body.newObject("PartDesign::Fillet", "Fillet002")
fillet3.Base = (pocket5, edges_at(pocket5, [
    (923.566, 1000.953, 1050.733),
    (930.326, 1000.953, 1050.733),
    (982.363, 996.157, 1048.483),
    (982.363, 1044.132, 1048.483),
    (886.389, 1044.132, 1048.483),
    (886.389, 996.157, 1048.483),
    (982.863, 995.657, 1053.083),
    (929.263, 995.657, 1053.083),
    (929.263, 1006.632, 1053.083),
    (982.863, 1006.632, 1053.083),
    (961.963, 1021.332, 1053.083),
    (927.563, 1021.332, 1053.083),
    (927.563, 1032.812, 1053.083),
    (904.363, 1032.812, 1053.083),
    (904.363, 1044.632, 1053.083),
    (934.163, 1044.632, 1053.083),
    (935.663, 1044.632, 1053.083),
    (982.863, 1044.632, 1053.083),
    (982.863, 1021.332, 1053.083),
    (963.463, 1021.332, 1053.083),
    (963.463, 1032.732, 1053.083),
    (961.963, 1031.232, 1053.083),
    (885.889, 1021.332, 1053.083),
    (885.889, 1044.632, 1053.083),
    (902.863, 1044.632, 1053.083),
    (902.863, 1031.312, 1053.083),
    (926.063, 1031.312, 1053.083),
    (926.063, 1021.332, 1053.083),
    (927.763, 995.657, 1053.083),
    (885.889, 995.657, 1053.083),
    (885.889, 1019.832, 1053.083),
    (982.863, 1019.832, 1053.083),
    (982.863, 1008.132, 1053.083),
    (927.763, 1008.132, 1053.083),
]))
fillet3.Radius = 2
doc.recompute()

fillet4 = body.newObject("PartDesign::Fillet", "Fillet003")
fillet4.Base = (fillet3, edges_at(fillet3, [
    (930.738, 997.444, 1050.783),
    (969.13, 997.444, 1050.783),
    (930.738, 1004.844, 1050.783),
    (969.13, 1004.844, 1050.783),
]))
fillet4.Radius = 1

sketch9 = body.newObject("Sketcher::SketchObject", "Sketch008")
sketch9.AttachmentSupport = (doc.getObject("XY_Plane"), [""])
sketch9.MapMode = "FlatFace"
sketch9.AttachmentOffset = App.Placement(V(0, 0, 1055.083289), App.Rotation())
sketch9.addGeometry(Part.LineSegment(V(982, 1016.6, 0), V(982, 1009.8, 0)), False)
sketch9.addGeometry(Part.LineSegment(V(982, 1009.8, 0), V(984.4, 1009.8, 0)), False)
sketch9.addGeometry(Part.LineSegment(V(984.4, 1009.8, 0), V(984.4, 1016.6, 0)), False)
sketch9.addGeometry(Part.LineSegment(V(984.4, 1016.6, 0), V(982, 1016.6, 0)), False)
sketch9.addConstraint(Sketcher.Constraint("Coincident", 0, 2, 1, 1))
sketch9.addConstraint(Sketcher.Constraint("Coincident", 1, 2, 2, 1))
sketch9.addConstraint(Sketcher.Constraint("Coincident", 2, 2, 3, 1))
sketch9.addConstraint(Sketcher.Constraint("Coincident", 3, 2, 0, 1))
sketch9.addConstraint(Sketcher.Constraint("Vertical", 0))
sketch9.addConstraint(Sketcher.Constraint("Horizontal", 1))
sketch9.addConstraint(Sketcher.Constraint("Vertical", 2))
sketch9.addConstraint(Sketcher.Constraint("Horizontal", 3))
sketch9.addConstraint(Sketcher.Constraint("DistanceY", 0, 2, 0, 1, 6.8))
sketch9.addConstraint(Sketcher.Constraint("DistanceX", 1, 1, 1, 2, 2.323737))
sketch9.addConstraint(Sketcher.Constraint("DistanceY", -1, 1, 0, 2, 1009.831818))
sketch9.addConstraint(Sketcher.Constraint("DistanceX", -1, 1, 0, 2, 982.039626))
pocket6 = body.newObject("PartDesign::Pocket", "Pocket005")
pocket6.Profile = sketch9
pocket6.Length = 2

doc.recompute()
